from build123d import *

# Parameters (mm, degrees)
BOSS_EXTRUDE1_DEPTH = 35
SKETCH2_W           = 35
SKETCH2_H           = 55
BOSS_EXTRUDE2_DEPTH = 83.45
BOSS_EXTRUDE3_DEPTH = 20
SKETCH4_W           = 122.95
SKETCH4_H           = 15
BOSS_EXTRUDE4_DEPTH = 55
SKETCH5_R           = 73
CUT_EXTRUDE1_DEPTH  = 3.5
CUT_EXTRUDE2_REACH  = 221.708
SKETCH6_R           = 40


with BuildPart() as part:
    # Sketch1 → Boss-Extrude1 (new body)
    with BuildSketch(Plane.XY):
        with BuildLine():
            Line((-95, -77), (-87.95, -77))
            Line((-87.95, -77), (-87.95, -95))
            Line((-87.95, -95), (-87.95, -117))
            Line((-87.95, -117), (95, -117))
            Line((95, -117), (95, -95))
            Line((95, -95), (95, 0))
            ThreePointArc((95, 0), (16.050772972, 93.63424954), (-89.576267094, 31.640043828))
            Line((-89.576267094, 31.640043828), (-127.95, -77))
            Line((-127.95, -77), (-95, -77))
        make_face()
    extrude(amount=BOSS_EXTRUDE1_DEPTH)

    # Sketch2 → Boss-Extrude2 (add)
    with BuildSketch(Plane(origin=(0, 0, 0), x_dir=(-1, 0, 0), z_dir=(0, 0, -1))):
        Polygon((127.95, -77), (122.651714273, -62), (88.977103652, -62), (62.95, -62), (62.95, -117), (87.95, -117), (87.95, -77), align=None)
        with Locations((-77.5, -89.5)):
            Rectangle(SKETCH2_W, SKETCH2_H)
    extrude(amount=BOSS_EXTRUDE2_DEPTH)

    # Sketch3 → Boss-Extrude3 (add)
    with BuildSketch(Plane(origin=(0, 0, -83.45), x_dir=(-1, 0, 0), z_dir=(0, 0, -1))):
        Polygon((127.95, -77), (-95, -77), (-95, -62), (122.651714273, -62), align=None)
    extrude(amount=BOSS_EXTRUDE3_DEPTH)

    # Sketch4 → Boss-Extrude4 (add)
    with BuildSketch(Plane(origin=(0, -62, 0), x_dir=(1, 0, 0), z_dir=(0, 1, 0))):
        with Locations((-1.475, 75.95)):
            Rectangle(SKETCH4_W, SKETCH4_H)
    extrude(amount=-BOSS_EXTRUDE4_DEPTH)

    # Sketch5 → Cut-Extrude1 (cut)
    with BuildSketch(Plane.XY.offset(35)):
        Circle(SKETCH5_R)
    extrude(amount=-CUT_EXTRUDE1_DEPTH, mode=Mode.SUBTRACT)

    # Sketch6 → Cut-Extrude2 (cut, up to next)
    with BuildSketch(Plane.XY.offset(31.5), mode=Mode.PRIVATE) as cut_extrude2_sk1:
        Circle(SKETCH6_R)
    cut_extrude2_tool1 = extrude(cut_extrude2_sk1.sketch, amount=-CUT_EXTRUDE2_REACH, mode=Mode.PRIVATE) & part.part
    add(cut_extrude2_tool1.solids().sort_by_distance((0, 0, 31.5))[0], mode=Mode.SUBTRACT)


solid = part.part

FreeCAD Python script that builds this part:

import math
import FreeCAD as App
import Part
import Sketcher
Q = App.Units.Quantity

doc = App.newDocument("Part")
body = doc.addObject("PartDesign::Body", "Body")

sketch1 = doc.addObject("Sketcher::SketchObject", "Sketch")
body.addObject(sketch1)
sketch1.AttachmentSupport = (doc.XY_Plane, [""])
sketch1.MapMode = "FlatFace"
sketch1.addGeometry([
    Part.LineSegment(App.Vector(-88, -77, 0), App.Vector(-88, -117, 0)),
    Part.LineSegment(App.Vector(-88, -117, 0), App.Vector(95, -117, 0)),
    Part.LineSegment(App.Vector(95, -117, 0), App.Vector(95, 0, 0)),
    Part.ArcOfCircle(Part.Circle(App.Vector(0, 0, 0), App.Vector(0, 0, 1), 95), math.radians(0), math.radians(161)),
    Part.LineSegment(App.Vector(-90, 32, 0), App.Vector(-128, -77, 0)),
    Part.LineSegment(App.Vector(-128, -77, 0), App.Vector(-88, -77, 0)),
], False)
sketch1.addConstraint([
    Sketcher.Constraint("Coincident", 0, 2, 1, 1),
    Sketcher.Constraint("Coincident", 1, 2, 2, 1),
    Sketcher.Constraint("Tangent", 2, 2, 3, 1),
    Sketcher.Constraint("Tangent", 3, 2, 4, 1),
    Sketcher.Constraint("Coincident", 4, 2, 5, 1),
    Sketcher.Constraint("Coincident", 5, 2, 0, 1),
    Sketcher.Constraint("Vertical", 0),
    Sketcher.Constraint("Horizontal", 1),
    Sketcher.Constraint("Vertical", 2),
    Sketcher.Constraint("Horizontal", 5),
    Sketcher.Constraint("Coincident", 3, 3, -1, 1),
    Sketcher.Constraint("Equal", 5, 0),
    Sketcher.Constraint("Radius", 3, Q("95 mm")),
    Sketcher.Constraint("DistanceX", 5, 1, 5, 2, Q("40 mm")),
    Sketcher.Constraint("DistanceY", 2, 1, 2, 2, Q("117 mm")),
    Sketcher.Constraint("DistanceX", 1, 1, 1, 2, Q("182.95 mm")),
])
pad1 = doc.addObject("PartDesign::Pad", "Pad")
body.addObject(pad1)
pad1.Profile = sketch1
pad1.Length = 35

sketch2 = doc.addObject("Sketcher::SketchObject", "Sketch001")
body.addObject(sketch2)
sketch2.AttachmentSupport = (doc.XY_Plane, [""])
sketch2.MapMode = "FlatFace"
sketch2.addGeometry([
    Part.LineSegment(App.Vector(-128, -77, 0), App.Vector(-123, -62, 0)),
    Part.LineSegment(App.Vector(-123, -62, 0), App.Vector(-63, -62, 0)),
    Part.LineSegment(App.Vector(-63, -62, 0), App.Vector(-63, -117, 0)),
    Part.LineSegment(App.Vector(-63, -117, 0), App.Vector(-88, -117, 0)),
    Part.LineSegment(App.Vector(-88, -117, 0), App.Vector(-88, -77, 0)),
    Part.LineSegment(App.Vector(-88, -77, 0), App.Vector(-128, -77, 0)),
    Part.LineSegment(App.Vector(95, -62, 0), App.Vector(95, -117, 0)),
    Part.LineSegment(App.Vector(95, -117, 0), App.Vector(60, -117, 0)),
    Part.LineSegment(App.Vector(60, -117, 0), App.Vector(60, -62, 0)),
    Part.LineSegment(App.Vector(60, -62, 0), App.Vector(95, -62, 0)),
], False)
sketch2.addConstraint([
    Sketcher.Constraint("Coincident", 0, 2, 1, 1),
    Sketcher.Constraint("Coincident", 1, 2, 2, 1),
    Sketcher.Constraint("Coincident", 2, 2, 3, 1),
    Sketcher.Constraint("Coincident", 3, 2, 4, 1),
    Sketcher.Constraint("Coincident", 4, 2, 5, 1),
    Sketcher.Constraint("Coincident", 5, 2, 0, 1),
    Sketcher.Constraint("Coincident", 6, 2, 7, 1),
    Sketcher.Constraint("Coincident", 7, 2, 8, 1),
    Sketcher.Constraint("Coincident", 8, 2, 9, 1),
    Sketcher.Constraint("Coincident", 9, 2, 6, 1),
    Sketcher.Constraint("Horizontal", 1),
    Sketcher.Constraint("Vertical", 2),
    Sketcher.Constraint("Horizontal", 3),
    Sketcher.Constraint("Vertical", 4),
    Sketcher.Constraint("Horizontal", 5),
    Sketcher.Constraint("Vertical", 6),
    Sketcher.Constraint("Horizontal", 7),
    Sketcher.Constraint("Vertical", 8),
    Sketcher.Constraint("Horizontal", 9),
    Sketcher.Constraint("Horizontal", 3, 2, 6, 2),
    Sketcher.Constraint("Horizontal", 1, 2, 8, 2),
    Sketcher.Constraint("Equal", 5, 4),
    Sketcher.Constraint("DistanceX", 3, 2, 3, 1, Q("25 mm")),
    Sketcher.Constraint("DistanceX", 5, 2, 5, 1, Q("40 mm")),
    Sketcher.Constraint("DistanceX", 7, 2, 7, 1, Q("35 mm")),
    Sketcher.Constraint("DistanceY", 2, 2, 2, 1, Q("55 mm")),
    Sketcher.Constraint("DistanceY", 0, 2, -1, 1, Q("62 mm")),
    Sketcher.Constraint("DistanceX", -1, 1, 6, 2, Q("95 mm")),
    Sketcher.Constraint("DistanceX", 1, 2, -1, 1, Q("62.95 mm")),
    Sketcher.Constraint("Distance", 0, Q("15.908232 mm")),
])
pad2 = doc.addObject("PartDesign::Pad", "Pad001")
body.addObject(pad2)
pad2.Profile = sketch2
pad2.Length = 83.45
pad2.Reversed = True

sketch3 = doc.addObject("Sketcher::SketchObject", "Sketch002")
body.addObject(sketch3)
sketch3.AttachmentSupport = (doc.XY_Plane, [""])
sketch3.MapMode = "FlatFace"
sketch3.AttachmentOffset = App.Placement(App.Vector(0, 0, -83.45), App.Rotation())
sketch3.addGeometry([
    Part.LineSegment(App.Vector(95, -77, 0), App.Vector(-128, -77, 0)),
    Part.LineSegment(App.Vector(-128, -77, 0), App.Vector(-123, -62, 0)),
    Part.LineSegment(App.Vector(-123, -62, 0), App.Vector(95, -62, 0)),
    Part.LineSegment(App.Vector(95, -62, 0), App.Vector(95, -77, 0)),
], False)
sketch3.addConstraint([
    Sketcher.Constraint("Coincident", 0, 2, 1, 1),
    Sketcher.Constraint("Coincident", 1, 2, 2, 1),
    Sketcher.Constraint("Coincident", 2, 2, 3, 1),
    Sketcher.Constraint("Coincident", 3, 2, 0, 1),
    Sketcher.Constraint("Horizontal", 0),
    Sketcher.Constraint("Horizontal", 2),
    Sketcher.Constraint("Vertical", 3),
    Sketcher.Constraint("DistanceY", 3, 2, 3, 1, Q("15 mm")),
    Sketcher.Constraint("DistanceY", 0, 2, -1, 1, Q("77 mm")),
    Sketcher.Constraint("DistanceX", -1, 1, 2, 2, Q("95 mm")),
    Sketcher.Constraint("DistanceX", 0, 2, 0, 1, Q("222.95 mm")),
    Sketcher.Constraint("Distance", 1, Q("15.908232 mm")),
])
pad3 = doc.addObject("PartDesign::Pad", "Pad002")
body.addObject(pad3)
pad3.Profile = sketch3
pad3.Length = 20
pad3.Reversed = True

sketch4 = doc.addObject("Sketcher::SketchObject", "Sketch003")
body.addObject(sketch4)
sketch4.AttachmentSupport = (doc.XZ_Plane, [""])
sketch4.MapMode = "FlatFace"
sketch4.AttachmentOffset = App.Placement(App.Vector(0, 0, 62), App.Rotation())
sketch4.addGeometry([
    Part.LineSegment(App.Vector(-63, -83, 0), App.Vector(-63, -68, 0)),
    Part.LineSegment(App.Vector(-63, -68, 0), App.Vector(60, -68, 0)),
    Part.LineSegment(App.Vector(60, -68, 0), App.Vector(60, -83, 0)),
    Part.LineSegment(App.Vector(60, -83, 0), App.Vector(-63, -83, 0)),
], False)
sketch4.addConstraint([
    Sketcher.Constraint("Coincident", 0, 2, 1, 1),
    Sketcher.Constraint("Coincident", 1, 2, 2, 1),
    Sketcher.Constraint("Coincident", 2, 2, 3, 1),
    Sketcher.Constraint("Coincident", 3, 2, 0, 1),
    Sketcher.Constraint("Vertical", 0),
    Sketcher.Constraint("Horizontal", 1),
    Sketcher.Constraint("Vertical", 2),
    Sketcher.Constraint("Horizontal", 3),
    Sketcher.Constraint("DistanceY", 0, 1, 0, 2, Q("15 mm")),
    Sketcher.Constraint("DistanceX", -1, 1, 1, 2, Q("60 mm")),
    Sketcher.Constraint("DistanceX", 1, 1, 1, 2, Q("122.95 mm")),
    Sketcher.Constraint("DistanceY", 0, 2, -1, 1, Q("68.45 mm")),
])
pad4 = doc.addObject("PartDesign::Pad", "Pad003")
body.addObject(pad4)
pad4.Profile = sketch4
pad4.Length = 55

sketch5 = doc.addObject("Sketcher::SketchObject", "Sketch004")
body.addObject(sketch5)
sketch5.AttachmentSupport = (doc.XY_Plane, [""])
sketch5.MapMode = "FlatFace"
sketch5.AttachmentOffset = App.Placement(App.Vector(0, 0, 35), App.Rotation())
sketch5.addGeometry(Part.Circle(App.Vector(0, 0, 0), App.Vector(0, 0, 1), 73), False)
sketch5.addConstraint([
    Sketcher.Constraint("Coincident", 0, 3, -1, 1),
    Sketcher.Constraint("Diameter", 0, Q("146 mm")),
])
pocket1 = doc.addObject("PartDesign::Pocket", "Pocket")
body.addObject(pocket1)
pocket1.Profile = sketch5
pocket1.Length = 3.5

sketch6 = doc.addObject("Sketcher::SketchObject", "Sketch005")
body.addObject(sketch6)
sketch6.AttachmentSupport = (doc.XY_Plane, [""])
sketch6.MapMode = "FlatFace"
sketch6.AttachmentOffset = App.Placement(App.Vector(0, 0, 31.5), App.Rotation())
sketch6.addGeometry(Part.Circle(App.Vector(0, 0, 0), App.Vector(0, 0, 1), 40), False)
sketch6.addConstraint([
    Sketcher.Constraint("Coincident", 0, 3, -1, 1),
    Sketcher.Constraint("Diameter", 0, Q("80 mm")),
])
pocket2 = doc.addObject("PartDesign::Pocket", "Pocket001")
body.addObject(pocket2)
pocket2.Profile = sketch6
pocket2.Type = "UpToFirst"

doc.recompute()
